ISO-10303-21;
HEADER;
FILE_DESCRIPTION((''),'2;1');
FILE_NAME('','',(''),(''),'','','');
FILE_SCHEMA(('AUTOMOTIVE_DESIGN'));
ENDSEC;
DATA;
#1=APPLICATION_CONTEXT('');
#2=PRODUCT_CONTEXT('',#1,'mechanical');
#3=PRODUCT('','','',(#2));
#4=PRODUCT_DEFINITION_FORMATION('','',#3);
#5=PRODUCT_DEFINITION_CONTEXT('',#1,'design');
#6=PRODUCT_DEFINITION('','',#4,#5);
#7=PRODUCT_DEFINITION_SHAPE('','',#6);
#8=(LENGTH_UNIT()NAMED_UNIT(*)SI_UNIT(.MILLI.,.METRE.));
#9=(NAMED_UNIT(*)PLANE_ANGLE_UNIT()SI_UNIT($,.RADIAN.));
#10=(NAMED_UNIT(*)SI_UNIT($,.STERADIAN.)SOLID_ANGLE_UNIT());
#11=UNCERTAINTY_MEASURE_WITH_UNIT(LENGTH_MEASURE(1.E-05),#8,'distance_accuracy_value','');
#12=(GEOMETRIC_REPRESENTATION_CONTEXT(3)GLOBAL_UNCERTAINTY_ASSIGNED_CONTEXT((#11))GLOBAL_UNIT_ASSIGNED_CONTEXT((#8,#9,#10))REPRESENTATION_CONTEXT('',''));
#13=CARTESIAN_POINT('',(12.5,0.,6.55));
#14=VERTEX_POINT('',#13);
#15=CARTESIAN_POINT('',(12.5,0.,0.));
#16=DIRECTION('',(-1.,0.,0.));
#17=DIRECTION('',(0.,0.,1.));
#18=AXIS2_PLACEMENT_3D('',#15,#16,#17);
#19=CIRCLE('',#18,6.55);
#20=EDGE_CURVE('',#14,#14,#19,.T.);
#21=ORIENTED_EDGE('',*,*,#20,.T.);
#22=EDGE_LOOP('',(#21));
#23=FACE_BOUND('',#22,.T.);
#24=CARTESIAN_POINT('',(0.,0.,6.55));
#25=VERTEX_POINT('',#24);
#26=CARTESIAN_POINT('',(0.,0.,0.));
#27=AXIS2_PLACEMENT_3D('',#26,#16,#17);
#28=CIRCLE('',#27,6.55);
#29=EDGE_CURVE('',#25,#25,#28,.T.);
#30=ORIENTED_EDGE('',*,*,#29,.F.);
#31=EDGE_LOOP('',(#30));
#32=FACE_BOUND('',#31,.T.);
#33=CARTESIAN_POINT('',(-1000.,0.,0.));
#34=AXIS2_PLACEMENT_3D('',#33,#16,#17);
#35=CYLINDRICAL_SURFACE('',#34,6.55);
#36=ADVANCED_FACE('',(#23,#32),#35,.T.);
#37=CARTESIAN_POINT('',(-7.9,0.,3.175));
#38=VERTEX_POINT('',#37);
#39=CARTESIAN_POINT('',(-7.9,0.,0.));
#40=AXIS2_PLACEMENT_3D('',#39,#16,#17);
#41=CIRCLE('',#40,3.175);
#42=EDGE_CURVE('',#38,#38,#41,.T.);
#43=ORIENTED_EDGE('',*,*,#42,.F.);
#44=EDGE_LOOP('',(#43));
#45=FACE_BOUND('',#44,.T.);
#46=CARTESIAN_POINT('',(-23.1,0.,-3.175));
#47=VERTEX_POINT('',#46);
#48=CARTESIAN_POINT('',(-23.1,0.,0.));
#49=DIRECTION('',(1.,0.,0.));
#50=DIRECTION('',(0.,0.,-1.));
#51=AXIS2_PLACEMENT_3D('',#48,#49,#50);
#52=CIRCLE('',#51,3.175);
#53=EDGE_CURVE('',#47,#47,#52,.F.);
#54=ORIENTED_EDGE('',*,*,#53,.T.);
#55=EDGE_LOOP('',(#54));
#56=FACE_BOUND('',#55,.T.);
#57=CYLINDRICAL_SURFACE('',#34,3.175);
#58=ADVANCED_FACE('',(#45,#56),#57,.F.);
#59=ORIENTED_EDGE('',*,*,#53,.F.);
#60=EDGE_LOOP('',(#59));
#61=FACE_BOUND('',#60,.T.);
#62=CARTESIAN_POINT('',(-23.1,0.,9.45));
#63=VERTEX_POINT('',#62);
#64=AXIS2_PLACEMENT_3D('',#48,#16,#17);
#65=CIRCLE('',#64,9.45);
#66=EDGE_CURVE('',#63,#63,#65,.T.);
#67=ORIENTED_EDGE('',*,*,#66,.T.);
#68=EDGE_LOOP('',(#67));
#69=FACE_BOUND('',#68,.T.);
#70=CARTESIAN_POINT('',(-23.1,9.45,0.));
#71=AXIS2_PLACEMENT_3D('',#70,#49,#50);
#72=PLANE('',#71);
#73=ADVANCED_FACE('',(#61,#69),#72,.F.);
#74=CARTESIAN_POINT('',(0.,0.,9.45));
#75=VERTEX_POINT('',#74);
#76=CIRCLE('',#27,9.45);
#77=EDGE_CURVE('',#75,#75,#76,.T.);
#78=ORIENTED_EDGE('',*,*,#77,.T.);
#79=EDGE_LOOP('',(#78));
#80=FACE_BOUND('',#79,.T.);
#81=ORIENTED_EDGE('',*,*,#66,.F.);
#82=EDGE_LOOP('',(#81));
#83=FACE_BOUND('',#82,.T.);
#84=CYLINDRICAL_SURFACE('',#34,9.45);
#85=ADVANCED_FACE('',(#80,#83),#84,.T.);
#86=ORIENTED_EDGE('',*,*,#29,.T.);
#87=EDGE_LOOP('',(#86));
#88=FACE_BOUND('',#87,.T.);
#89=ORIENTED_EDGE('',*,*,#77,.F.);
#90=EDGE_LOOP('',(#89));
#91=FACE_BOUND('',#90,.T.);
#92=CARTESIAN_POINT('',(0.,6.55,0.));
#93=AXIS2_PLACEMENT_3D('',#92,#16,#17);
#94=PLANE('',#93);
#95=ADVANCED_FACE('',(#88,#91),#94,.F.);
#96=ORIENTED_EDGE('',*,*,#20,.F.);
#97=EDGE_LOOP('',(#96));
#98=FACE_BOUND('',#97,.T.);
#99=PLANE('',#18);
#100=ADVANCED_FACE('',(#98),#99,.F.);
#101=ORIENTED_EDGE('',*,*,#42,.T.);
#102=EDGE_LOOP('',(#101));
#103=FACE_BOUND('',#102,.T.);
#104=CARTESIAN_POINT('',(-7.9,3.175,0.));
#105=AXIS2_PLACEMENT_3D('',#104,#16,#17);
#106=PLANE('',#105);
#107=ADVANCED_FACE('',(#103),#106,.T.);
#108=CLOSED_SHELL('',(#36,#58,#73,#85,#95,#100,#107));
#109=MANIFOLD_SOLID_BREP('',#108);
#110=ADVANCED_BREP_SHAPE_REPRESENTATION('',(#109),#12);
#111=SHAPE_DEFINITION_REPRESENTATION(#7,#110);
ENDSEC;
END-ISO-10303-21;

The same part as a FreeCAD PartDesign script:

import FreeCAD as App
import Part
import Sketcher
from FreeCAD import Vector
Q = App.Units.Quantity


def add_polygon(sketch, points):
    """Adds a closed chain of lines whose ends are joined by coincident constraints."""
    first, n = sketch.GeometryCount, len(points)
    for a, b in zip(points, points[1:] + points[:1]):
        sketch.addGeometry(Part.LineSegment(App.Vector(*a, 0), App.Vector(*b, 0)), False)
    for i in range(n):
        sketch.addConstraint(Sketcher.Constraint("Coincident", first + i, 2, first + (i + 1) % n, 1))

doc = App.newDocument("Part")
params = doc.addObject("Spreadsheet::Sheet", "Params")
for row, (alias, value) in enumerate([
    ("sketch1_width", "12.5 mm"),
    ("sketch1_width2", "23.1 mm"),
    ("sketch1_height", "2.9 mm"),
    ("sketch1_height2", "6.55 mm"),
    ("revolution_angle", "360 deg"),
    ("sketch2_width", "16.2 mm"),
    ("groove_angle", "360 deg"),
], start=1):
    params.set(f"A{row}", alias)
    params.set(f"B{row}", "=" + value)
    params.setAlias(f"B{row}", alias)

body = doc.addObject("PartDesign::Body", "Body")

# Sketch on XY plane
sketch1 = body.newObject("Sketcher::SketchObject", "Sketch")
sketch1.AttachmentSupport = (doc.getObject("XY_Plane"), [""])
sketch1.MapMode = "FlatFace"
add_polygon(sketch1, [(12.5, 0), (12.5, 6.55), (0, 6.55), (0, 9.45), (-23.1, 9.45), (-23.1, 0)])  # lines 0-5
sketch1.addConstraint(Sketcher.Constraint("Vertical", 0))
sketch1.addConstraint(Sketcher.Constraint("Horizontal", 1))
sketch1.addConstraint(Sketcher.Constraint("Vertical", 2))
sketch1.addConstraint(Sketcher.Constraint("Horizontal", 3))
sketch1.addConstraint(Sketcher.Constraint("Vertical", 4))
sketch1.addConstraint(Sketcher.Constraint("Horizontal", 5))
sketch1.addConstraint(Sketcher.Constraint("PointOnObject", 1, 2, -2))
sketch1.addConstraint(Sketcher.Constraint("PointOnObject", 4, 2, -1))
sketch1.addConstraint(Sketcher.Constraint("DistanceX", 1, 2, 1, 1, Q("12.5 mm")))
sketch1.addConstraint(Sketcher.Constraint("DistanceX", 3, 2, 3, 1, Q("23.1 mm")))
sketch1.addConstraint(Sketcher.Constraint("DistanceY", 2, 1, 2, 2, Q("2.9 mm")))
sketch1.addConstraint(Sketcher.Constraint("DistanceY", 0, 1, 0, 2, Q("6.55 mm")))
sketch1.setExpression("Constraints[14]", "Params.sketch1_width")
sketch1.setExpression("Constraints[15]", "Params.sketch1_width2")
sketch1.setExpression("Constraints[16]", "Params.sketch1_height")
sketch1.setExpression("Constraints[17]", "Params.sketch1_height2")
revolution = body.newObject("PartDesign::Revolution", "Revolution")
revolution.Profile = sketch1
revolution.ReferenceAxis = (sketch1, ["H_Axis"])
revolution.setExpression("Angle", "Params.revolution_angle")

# Sketch on XY plane
sketch2 = body.newObject("Sketcher::SketchObject", "Sketch001")
sketch2.AttachmentSupport = (doc.getObject("XY_Plane"), [""])
sketch2.MapMode = "FlatFace"
add_polygon(sketch2, [(-24.1, 3.175), (-24.1, 0), (-7.9, 0), (-7.9, 3.175)])  # lines 0-3
sketch2.addConstraint(Sketcher.Constraint("Vertical", 0))
sketch2.addConstraint(Sketcher.Constraint("Horizontal", 1))
sketch2.addConstraint(Sketcher.Constraint("Vertical", 2))
sketch2.addConstraint(Sketcher.Constraint("Horizontal", 3))
sketch2.addConstraint(Sketcher.Constraint("PointOnObject", 0, 2, -1))
sketch2.addConstraint(Sketcher.Constraint("DistanceX", 1, 1, 1, 2, Q("16.2 mm")))
sketch2.addConstraint(Sketcher.Constraint("DistanceX", 0, 2, -1, 1, Q("24.1 mm")))
sketch2.addConstraint(Sketcher.Constraint("DistanceY", 0, 2, 0, 1, Q("3.175 mm")))
sketch2.setExpression("Constraints[9]", "Params.sketch2_width")
groove = body.newObject("PartDesign::Groove", "Groove")
groove.Profile = sketch2
groove.ReferenceAxis = (sketch2, ["H_Axis"])
groove.setExpression("Angle", "Params.groove_angle")

doc.recompute()
